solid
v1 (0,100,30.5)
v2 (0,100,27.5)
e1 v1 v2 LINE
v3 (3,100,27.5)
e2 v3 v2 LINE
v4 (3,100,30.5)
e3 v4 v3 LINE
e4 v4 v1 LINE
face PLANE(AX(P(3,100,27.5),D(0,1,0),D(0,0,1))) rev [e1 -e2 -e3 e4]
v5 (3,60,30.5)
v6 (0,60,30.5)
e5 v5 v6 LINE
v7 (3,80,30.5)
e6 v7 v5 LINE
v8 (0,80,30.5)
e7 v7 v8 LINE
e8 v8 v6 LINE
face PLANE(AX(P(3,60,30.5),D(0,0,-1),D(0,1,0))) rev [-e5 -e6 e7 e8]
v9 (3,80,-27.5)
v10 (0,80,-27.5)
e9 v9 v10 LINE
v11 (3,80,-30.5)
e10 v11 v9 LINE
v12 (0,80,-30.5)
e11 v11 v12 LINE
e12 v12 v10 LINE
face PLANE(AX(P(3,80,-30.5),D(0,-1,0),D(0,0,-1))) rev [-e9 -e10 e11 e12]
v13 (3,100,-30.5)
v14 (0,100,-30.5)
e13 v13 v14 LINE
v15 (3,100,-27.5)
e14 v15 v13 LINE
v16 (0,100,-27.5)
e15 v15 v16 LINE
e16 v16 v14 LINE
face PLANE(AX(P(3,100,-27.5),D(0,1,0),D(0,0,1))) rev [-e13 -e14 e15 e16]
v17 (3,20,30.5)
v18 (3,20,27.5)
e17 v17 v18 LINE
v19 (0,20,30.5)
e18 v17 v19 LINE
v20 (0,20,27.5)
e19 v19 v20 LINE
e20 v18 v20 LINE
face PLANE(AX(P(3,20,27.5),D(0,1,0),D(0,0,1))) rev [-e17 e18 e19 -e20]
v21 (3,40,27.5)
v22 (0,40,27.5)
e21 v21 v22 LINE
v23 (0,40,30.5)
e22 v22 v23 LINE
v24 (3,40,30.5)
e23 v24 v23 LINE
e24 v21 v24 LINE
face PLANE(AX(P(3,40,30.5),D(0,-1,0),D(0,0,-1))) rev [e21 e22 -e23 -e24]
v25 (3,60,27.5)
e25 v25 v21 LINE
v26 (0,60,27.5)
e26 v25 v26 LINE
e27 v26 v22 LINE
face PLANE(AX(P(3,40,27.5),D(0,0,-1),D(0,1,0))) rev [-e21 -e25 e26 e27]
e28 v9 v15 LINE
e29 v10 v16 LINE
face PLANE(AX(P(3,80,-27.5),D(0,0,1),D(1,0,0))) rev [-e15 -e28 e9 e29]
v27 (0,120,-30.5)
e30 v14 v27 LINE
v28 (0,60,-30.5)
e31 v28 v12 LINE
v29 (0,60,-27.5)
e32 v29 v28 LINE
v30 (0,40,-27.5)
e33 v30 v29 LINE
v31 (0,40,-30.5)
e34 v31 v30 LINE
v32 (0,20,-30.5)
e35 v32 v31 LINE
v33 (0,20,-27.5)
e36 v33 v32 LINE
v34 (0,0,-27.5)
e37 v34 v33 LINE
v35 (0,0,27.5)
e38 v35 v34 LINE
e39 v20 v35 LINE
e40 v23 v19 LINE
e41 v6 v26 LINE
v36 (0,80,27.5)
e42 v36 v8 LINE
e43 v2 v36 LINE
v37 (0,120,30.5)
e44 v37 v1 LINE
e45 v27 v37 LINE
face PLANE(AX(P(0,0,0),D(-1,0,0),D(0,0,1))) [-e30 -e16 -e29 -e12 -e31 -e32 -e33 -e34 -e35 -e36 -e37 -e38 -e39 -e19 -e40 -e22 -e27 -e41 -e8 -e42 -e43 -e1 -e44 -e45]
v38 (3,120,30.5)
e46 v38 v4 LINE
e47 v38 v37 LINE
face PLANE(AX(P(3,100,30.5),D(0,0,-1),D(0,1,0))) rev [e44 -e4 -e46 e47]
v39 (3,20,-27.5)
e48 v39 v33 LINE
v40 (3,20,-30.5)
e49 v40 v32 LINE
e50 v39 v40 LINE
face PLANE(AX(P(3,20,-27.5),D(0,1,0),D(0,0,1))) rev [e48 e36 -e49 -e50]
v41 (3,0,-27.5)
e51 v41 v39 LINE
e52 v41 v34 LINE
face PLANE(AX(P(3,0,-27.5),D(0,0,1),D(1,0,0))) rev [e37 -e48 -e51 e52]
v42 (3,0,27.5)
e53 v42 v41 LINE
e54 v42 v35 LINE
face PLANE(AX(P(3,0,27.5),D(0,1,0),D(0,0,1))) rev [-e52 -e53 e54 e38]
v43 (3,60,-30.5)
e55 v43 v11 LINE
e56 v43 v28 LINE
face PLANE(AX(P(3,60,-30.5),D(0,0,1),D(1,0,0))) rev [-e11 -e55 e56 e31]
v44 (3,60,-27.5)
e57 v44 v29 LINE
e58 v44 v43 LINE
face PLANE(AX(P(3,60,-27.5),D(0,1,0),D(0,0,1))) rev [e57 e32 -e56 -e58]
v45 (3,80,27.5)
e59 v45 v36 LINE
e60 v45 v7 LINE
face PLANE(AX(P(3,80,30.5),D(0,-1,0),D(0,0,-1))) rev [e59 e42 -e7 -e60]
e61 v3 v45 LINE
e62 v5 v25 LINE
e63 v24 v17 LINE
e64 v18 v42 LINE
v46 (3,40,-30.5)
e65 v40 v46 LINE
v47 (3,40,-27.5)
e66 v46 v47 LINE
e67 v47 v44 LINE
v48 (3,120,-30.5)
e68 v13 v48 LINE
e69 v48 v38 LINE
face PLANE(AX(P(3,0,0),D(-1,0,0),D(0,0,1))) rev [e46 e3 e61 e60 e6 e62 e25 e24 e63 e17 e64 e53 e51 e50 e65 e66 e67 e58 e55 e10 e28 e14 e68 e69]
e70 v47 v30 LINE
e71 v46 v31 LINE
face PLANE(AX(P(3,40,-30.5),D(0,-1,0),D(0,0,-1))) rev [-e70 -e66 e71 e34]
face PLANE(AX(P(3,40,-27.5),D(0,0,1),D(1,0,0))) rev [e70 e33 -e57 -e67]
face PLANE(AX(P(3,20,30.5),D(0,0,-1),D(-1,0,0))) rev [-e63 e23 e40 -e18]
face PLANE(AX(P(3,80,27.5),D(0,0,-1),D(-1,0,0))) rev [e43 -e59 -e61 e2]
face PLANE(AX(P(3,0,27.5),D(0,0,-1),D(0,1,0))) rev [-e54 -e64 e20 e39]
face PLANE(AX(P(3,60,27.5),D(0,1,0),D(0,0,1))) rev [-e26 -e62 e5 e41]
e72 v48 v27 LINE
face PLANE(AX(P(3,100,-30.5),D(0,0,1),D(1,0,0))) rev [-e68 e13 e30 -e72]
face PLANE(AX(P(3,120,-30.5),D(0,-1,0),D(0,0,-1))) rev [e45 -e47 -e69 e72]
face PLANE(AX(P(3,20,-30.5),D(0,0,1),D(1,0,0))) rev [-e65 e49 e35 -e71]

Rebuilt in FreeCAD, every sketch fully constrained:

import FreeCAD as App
import Part
import Sketcher

doc = App.newDocument("Part")
body = doc.addObject("PartDesign::Body", "Body")

sketch1 = doc.addObject("Sketcher::SketchObject", "Sketch")
body.addObject(sketch1)
sketch1.AttachmentSupport = (doc.YZ_Plane, [""])
sketch1.MapMode = "FlatFace"
sketch1.addGeometry([
    Part.LineSegment(App.Vector(0, 27.5, 0), App.Vector(0, -27.5, 0)),
    Part.LineSegment(App.Vector(0, -27.5, 0), App.Vector(20, -27.5, 0)),
    Part.LineSegment(App.Vector(20, -27.5, 0), App.Vector(20, -30.5, 0)),
    Part.LineSegment(App.Vector(20, -30.5, 0), App.Vector(40, -30.5, 0)),
    Part.LineSegment(App.Vector(40, -30.5, 0), App.Vector(40, -27.5, 0)),
    Part.LineSegment(App.Vector(40, -27.5, 0), App.Vector(60, -27.5, 0)),
    Part.LineSegment(App.Vector(60, -27.5, 0), App.Vector(60, -30.5, 0)),
    Part.LineSegment(App.Vector(60, -30.5, 0), App.Vector(80, -30.5, 0)),
    Part.LineSegment(App.Vector(80, -30.5, 0), App.Vector(80, -27.5, 0)),
    Part.LineSegment(App.Vector(80, -27.5, 0), App.Vector(100, -27.5, 0)),
    Part.LineSegment(App.Vector(100, -27.5, 0), App.Vector(100, -30.5, 0)),
    Part.LineSegment(App.Vector(100, -30.5, 0), App.Vector(120, -30.5, 0)),
    Part.LineSegment(App.Vector(120, -30.5, 0), App.Vector(120, 30.5, 0)),
    Part.LineSegment(App.Vector(120, 30.5, 0), App.Vector(100, 30.5, 0)),
    Part.LineSegment(App.Vector(100, 30.5, 0), App.Vector(100, 27.5, 0)),
    Part.LineSegment(App.Vector(100, 27.5, 0), App.Vector(80, 27.5, 0)),
    Part.LineSegment(App.Vector(80, 27.5, 0), App.Vector(80, 30.5, 0)),
    Part.LineSegment(App.Vector(80, 30.5, 0), App.Vector(60, 30.5, 0)),
    Part.LineSegment(App.Vector(60, 30.5, 0), App.Vector(60, 27.5, 0)),
    Part.LineSegment(App.Vector(60, 27.5, 0), App.Vector(40, 27.5, 0)),
    Part.LineSegment(App.Vector(40, 27.5, 0), App.Vector(40, 30.5, 0)),
    Part.LineSegment(App.Vector(40, 30.5, 0), App.Vector(20, 30.5, 0)),
    Part.LineSegment(App.Vector(20, 30.5, 0), App.Vector(20, 27.5, 0)),
    Part.LineSegment(App.Vector(20, 27.5, 0), App.Vector(0, 27.5, 0)),
], False)
sketch1.addConstraint([
    Sketcher.Constraint("Coincident", 0, 2, 1, 1),
    Sketcher.Constraint("Coincident", 1, 2, 2, 1),
    Sketcher.Constraint("Coincident", 2, 2, 3, 1),
    Sketcher.Constraint("Coincident", 3, 2, 4, 1),
    Sketcher.Constraint("Coincident", 4, 2, 5, 1),
    Sketcher.Constraint("Coincident", 5, 2, 6, 1),
    Sketcher.Constraint("Coincident", 6, 2, 7, 1),
    Sketcher.Constraint("Coincident", 7, 2, 8, 1),
    Sketcher.Constraint("Coincident", 8, 2, 9, 1),
    Sketcher.Constraint("Coincident", 9, 2, 10, 1),
    Sketcher.Constraint("Coincident", 10, 2, 11, 1),
    Sketcher.Constraint("Coincident", 11, 2, 12, 1),
    Sketcher.Constraint("Coincident", 12, 2, 13, 1),
    Sketcher.Constraint("Coincident", 13, 2, 14, 1),
    Sketcher.Constraint("Coincident", 14, 2, 15, 1),
    Sketcher.Constraint("Coincident", 15, 2, 16, 1),
    Sketcher.Constraint("Coincident", 16, 2, 17, 1),
    Sketcher.Constraint("Coincident", 17, 2, 18, 1),
    Sketcher.Constraint("Coincident", 18, 2, 19, 1),
    Sketcher.Constraint("Coincident", 19, 2, 20, 1),
    Sketcher.Constraint("Coincident", 20, 2, 21, 1),
    Sketcher.Constraint("Coincident", 21, 2, 22, 1),
    Sketcher.Constraint("Coincident", 22, 2, 23, 1),
    Sketcher.Constraint("Coincident", 23, 2, 0, 1),
    Sketcher.Constraint("Vertical", 0),
    Sketcher.Constraint("Horizontal", 1),
    Sketcher.Constraint("Vertical", 2),
    Sketcher.Constraint("Horizontal", 3),
    Sketcher.Constraint("Vertical", 4),
    Sketcher.Constraint("Horizontal", 5),
    Sketcher.Constraint("Vertical", 6),
    Sketcher.Constraint("Horizontal", 7),
    Sketcher.Constraint("Vertical", 8),
    Sketcher.Constraint("Horizontal", 9),
    Sketcher.Constraint("Vertical", 10),
    Sketcher.Constraint("Horizontal", 11),
    Sketcher.Constraint("Vertical", 12),
    Sketcher.Constraint("Horizontal", 13),
    Sketcher.Constraint("Vertical", 14),
    Sketcher.Constraint("Horizontal", 15),
    Sketcher.Constraint("Vertical", 16),
    Sketcher.Constraint("Horizontal", 17),
    Sketcher.Constraint("Vertical", 18),
    Sketcher.Constraint("Horizontal", 19),
    Sketcher.Constraint("Vertical", 20),
    Sketcher.Constraint("Horizontal", 21),
    Sketcher.Constraint("Vertical", 22),
    Sketcher.Constraint("Horizontal", 23),
    Sketcher.Constraint("Symmetric", 0, 2, 23, 2, -1, 1),
    Sketcher.Constraint("Symmetric", 10, 2, 13, 2, -1),
    Sketcher.Constraint("Symmetric", 8, 2, 15, 2, -1),
    Sketcher.Constraint("Symmetric", 6, 2, 17, 2, -1),
    Sketcher.Constraint("Symmetric", 4, 2, 19, 2, -1),
    Sketcher.Constraint("Symmetric", 2, 2, 21, 2, -1),
    Sketcher.Constraint("Horizontal", 1, 2, 4, 2),
    Sketcher.Constraint("Horizontal", 3, 2, 6, 2),
    Sketcher.Constraint("Horizontal", 5, 2, 8, 2),
    Sketcher.Constraint("Horizontal", 7, 2, 10, 2),
    Sketcher.Constraint("Equal", 1, 3),
    Sketcher.Constraint("Equal", 3, 5),
    Sketcher.Constraint("Equal", 5, 7),
    Sketcher.Constraint("Equal", 7, 9),
    Sketcher.Constraint("Equal", 9, 11),
    Sketcher.Constraint("DistanceX", 1, 1, 1, 2, 20.0),
    Sketcher.Constraint("DistanceY", 0, 2, 0, 1, 55.0),
    Sketcher.Constraint("DistanceY", 2, 2, 2, 1, 3.0),
])
pad1 = doc.addObject("PartDesign::Pad", "Pad")
body.addObject(pad1)
pad1.Profile = sketch1
pad1.Length = 3

doc.recompute()
